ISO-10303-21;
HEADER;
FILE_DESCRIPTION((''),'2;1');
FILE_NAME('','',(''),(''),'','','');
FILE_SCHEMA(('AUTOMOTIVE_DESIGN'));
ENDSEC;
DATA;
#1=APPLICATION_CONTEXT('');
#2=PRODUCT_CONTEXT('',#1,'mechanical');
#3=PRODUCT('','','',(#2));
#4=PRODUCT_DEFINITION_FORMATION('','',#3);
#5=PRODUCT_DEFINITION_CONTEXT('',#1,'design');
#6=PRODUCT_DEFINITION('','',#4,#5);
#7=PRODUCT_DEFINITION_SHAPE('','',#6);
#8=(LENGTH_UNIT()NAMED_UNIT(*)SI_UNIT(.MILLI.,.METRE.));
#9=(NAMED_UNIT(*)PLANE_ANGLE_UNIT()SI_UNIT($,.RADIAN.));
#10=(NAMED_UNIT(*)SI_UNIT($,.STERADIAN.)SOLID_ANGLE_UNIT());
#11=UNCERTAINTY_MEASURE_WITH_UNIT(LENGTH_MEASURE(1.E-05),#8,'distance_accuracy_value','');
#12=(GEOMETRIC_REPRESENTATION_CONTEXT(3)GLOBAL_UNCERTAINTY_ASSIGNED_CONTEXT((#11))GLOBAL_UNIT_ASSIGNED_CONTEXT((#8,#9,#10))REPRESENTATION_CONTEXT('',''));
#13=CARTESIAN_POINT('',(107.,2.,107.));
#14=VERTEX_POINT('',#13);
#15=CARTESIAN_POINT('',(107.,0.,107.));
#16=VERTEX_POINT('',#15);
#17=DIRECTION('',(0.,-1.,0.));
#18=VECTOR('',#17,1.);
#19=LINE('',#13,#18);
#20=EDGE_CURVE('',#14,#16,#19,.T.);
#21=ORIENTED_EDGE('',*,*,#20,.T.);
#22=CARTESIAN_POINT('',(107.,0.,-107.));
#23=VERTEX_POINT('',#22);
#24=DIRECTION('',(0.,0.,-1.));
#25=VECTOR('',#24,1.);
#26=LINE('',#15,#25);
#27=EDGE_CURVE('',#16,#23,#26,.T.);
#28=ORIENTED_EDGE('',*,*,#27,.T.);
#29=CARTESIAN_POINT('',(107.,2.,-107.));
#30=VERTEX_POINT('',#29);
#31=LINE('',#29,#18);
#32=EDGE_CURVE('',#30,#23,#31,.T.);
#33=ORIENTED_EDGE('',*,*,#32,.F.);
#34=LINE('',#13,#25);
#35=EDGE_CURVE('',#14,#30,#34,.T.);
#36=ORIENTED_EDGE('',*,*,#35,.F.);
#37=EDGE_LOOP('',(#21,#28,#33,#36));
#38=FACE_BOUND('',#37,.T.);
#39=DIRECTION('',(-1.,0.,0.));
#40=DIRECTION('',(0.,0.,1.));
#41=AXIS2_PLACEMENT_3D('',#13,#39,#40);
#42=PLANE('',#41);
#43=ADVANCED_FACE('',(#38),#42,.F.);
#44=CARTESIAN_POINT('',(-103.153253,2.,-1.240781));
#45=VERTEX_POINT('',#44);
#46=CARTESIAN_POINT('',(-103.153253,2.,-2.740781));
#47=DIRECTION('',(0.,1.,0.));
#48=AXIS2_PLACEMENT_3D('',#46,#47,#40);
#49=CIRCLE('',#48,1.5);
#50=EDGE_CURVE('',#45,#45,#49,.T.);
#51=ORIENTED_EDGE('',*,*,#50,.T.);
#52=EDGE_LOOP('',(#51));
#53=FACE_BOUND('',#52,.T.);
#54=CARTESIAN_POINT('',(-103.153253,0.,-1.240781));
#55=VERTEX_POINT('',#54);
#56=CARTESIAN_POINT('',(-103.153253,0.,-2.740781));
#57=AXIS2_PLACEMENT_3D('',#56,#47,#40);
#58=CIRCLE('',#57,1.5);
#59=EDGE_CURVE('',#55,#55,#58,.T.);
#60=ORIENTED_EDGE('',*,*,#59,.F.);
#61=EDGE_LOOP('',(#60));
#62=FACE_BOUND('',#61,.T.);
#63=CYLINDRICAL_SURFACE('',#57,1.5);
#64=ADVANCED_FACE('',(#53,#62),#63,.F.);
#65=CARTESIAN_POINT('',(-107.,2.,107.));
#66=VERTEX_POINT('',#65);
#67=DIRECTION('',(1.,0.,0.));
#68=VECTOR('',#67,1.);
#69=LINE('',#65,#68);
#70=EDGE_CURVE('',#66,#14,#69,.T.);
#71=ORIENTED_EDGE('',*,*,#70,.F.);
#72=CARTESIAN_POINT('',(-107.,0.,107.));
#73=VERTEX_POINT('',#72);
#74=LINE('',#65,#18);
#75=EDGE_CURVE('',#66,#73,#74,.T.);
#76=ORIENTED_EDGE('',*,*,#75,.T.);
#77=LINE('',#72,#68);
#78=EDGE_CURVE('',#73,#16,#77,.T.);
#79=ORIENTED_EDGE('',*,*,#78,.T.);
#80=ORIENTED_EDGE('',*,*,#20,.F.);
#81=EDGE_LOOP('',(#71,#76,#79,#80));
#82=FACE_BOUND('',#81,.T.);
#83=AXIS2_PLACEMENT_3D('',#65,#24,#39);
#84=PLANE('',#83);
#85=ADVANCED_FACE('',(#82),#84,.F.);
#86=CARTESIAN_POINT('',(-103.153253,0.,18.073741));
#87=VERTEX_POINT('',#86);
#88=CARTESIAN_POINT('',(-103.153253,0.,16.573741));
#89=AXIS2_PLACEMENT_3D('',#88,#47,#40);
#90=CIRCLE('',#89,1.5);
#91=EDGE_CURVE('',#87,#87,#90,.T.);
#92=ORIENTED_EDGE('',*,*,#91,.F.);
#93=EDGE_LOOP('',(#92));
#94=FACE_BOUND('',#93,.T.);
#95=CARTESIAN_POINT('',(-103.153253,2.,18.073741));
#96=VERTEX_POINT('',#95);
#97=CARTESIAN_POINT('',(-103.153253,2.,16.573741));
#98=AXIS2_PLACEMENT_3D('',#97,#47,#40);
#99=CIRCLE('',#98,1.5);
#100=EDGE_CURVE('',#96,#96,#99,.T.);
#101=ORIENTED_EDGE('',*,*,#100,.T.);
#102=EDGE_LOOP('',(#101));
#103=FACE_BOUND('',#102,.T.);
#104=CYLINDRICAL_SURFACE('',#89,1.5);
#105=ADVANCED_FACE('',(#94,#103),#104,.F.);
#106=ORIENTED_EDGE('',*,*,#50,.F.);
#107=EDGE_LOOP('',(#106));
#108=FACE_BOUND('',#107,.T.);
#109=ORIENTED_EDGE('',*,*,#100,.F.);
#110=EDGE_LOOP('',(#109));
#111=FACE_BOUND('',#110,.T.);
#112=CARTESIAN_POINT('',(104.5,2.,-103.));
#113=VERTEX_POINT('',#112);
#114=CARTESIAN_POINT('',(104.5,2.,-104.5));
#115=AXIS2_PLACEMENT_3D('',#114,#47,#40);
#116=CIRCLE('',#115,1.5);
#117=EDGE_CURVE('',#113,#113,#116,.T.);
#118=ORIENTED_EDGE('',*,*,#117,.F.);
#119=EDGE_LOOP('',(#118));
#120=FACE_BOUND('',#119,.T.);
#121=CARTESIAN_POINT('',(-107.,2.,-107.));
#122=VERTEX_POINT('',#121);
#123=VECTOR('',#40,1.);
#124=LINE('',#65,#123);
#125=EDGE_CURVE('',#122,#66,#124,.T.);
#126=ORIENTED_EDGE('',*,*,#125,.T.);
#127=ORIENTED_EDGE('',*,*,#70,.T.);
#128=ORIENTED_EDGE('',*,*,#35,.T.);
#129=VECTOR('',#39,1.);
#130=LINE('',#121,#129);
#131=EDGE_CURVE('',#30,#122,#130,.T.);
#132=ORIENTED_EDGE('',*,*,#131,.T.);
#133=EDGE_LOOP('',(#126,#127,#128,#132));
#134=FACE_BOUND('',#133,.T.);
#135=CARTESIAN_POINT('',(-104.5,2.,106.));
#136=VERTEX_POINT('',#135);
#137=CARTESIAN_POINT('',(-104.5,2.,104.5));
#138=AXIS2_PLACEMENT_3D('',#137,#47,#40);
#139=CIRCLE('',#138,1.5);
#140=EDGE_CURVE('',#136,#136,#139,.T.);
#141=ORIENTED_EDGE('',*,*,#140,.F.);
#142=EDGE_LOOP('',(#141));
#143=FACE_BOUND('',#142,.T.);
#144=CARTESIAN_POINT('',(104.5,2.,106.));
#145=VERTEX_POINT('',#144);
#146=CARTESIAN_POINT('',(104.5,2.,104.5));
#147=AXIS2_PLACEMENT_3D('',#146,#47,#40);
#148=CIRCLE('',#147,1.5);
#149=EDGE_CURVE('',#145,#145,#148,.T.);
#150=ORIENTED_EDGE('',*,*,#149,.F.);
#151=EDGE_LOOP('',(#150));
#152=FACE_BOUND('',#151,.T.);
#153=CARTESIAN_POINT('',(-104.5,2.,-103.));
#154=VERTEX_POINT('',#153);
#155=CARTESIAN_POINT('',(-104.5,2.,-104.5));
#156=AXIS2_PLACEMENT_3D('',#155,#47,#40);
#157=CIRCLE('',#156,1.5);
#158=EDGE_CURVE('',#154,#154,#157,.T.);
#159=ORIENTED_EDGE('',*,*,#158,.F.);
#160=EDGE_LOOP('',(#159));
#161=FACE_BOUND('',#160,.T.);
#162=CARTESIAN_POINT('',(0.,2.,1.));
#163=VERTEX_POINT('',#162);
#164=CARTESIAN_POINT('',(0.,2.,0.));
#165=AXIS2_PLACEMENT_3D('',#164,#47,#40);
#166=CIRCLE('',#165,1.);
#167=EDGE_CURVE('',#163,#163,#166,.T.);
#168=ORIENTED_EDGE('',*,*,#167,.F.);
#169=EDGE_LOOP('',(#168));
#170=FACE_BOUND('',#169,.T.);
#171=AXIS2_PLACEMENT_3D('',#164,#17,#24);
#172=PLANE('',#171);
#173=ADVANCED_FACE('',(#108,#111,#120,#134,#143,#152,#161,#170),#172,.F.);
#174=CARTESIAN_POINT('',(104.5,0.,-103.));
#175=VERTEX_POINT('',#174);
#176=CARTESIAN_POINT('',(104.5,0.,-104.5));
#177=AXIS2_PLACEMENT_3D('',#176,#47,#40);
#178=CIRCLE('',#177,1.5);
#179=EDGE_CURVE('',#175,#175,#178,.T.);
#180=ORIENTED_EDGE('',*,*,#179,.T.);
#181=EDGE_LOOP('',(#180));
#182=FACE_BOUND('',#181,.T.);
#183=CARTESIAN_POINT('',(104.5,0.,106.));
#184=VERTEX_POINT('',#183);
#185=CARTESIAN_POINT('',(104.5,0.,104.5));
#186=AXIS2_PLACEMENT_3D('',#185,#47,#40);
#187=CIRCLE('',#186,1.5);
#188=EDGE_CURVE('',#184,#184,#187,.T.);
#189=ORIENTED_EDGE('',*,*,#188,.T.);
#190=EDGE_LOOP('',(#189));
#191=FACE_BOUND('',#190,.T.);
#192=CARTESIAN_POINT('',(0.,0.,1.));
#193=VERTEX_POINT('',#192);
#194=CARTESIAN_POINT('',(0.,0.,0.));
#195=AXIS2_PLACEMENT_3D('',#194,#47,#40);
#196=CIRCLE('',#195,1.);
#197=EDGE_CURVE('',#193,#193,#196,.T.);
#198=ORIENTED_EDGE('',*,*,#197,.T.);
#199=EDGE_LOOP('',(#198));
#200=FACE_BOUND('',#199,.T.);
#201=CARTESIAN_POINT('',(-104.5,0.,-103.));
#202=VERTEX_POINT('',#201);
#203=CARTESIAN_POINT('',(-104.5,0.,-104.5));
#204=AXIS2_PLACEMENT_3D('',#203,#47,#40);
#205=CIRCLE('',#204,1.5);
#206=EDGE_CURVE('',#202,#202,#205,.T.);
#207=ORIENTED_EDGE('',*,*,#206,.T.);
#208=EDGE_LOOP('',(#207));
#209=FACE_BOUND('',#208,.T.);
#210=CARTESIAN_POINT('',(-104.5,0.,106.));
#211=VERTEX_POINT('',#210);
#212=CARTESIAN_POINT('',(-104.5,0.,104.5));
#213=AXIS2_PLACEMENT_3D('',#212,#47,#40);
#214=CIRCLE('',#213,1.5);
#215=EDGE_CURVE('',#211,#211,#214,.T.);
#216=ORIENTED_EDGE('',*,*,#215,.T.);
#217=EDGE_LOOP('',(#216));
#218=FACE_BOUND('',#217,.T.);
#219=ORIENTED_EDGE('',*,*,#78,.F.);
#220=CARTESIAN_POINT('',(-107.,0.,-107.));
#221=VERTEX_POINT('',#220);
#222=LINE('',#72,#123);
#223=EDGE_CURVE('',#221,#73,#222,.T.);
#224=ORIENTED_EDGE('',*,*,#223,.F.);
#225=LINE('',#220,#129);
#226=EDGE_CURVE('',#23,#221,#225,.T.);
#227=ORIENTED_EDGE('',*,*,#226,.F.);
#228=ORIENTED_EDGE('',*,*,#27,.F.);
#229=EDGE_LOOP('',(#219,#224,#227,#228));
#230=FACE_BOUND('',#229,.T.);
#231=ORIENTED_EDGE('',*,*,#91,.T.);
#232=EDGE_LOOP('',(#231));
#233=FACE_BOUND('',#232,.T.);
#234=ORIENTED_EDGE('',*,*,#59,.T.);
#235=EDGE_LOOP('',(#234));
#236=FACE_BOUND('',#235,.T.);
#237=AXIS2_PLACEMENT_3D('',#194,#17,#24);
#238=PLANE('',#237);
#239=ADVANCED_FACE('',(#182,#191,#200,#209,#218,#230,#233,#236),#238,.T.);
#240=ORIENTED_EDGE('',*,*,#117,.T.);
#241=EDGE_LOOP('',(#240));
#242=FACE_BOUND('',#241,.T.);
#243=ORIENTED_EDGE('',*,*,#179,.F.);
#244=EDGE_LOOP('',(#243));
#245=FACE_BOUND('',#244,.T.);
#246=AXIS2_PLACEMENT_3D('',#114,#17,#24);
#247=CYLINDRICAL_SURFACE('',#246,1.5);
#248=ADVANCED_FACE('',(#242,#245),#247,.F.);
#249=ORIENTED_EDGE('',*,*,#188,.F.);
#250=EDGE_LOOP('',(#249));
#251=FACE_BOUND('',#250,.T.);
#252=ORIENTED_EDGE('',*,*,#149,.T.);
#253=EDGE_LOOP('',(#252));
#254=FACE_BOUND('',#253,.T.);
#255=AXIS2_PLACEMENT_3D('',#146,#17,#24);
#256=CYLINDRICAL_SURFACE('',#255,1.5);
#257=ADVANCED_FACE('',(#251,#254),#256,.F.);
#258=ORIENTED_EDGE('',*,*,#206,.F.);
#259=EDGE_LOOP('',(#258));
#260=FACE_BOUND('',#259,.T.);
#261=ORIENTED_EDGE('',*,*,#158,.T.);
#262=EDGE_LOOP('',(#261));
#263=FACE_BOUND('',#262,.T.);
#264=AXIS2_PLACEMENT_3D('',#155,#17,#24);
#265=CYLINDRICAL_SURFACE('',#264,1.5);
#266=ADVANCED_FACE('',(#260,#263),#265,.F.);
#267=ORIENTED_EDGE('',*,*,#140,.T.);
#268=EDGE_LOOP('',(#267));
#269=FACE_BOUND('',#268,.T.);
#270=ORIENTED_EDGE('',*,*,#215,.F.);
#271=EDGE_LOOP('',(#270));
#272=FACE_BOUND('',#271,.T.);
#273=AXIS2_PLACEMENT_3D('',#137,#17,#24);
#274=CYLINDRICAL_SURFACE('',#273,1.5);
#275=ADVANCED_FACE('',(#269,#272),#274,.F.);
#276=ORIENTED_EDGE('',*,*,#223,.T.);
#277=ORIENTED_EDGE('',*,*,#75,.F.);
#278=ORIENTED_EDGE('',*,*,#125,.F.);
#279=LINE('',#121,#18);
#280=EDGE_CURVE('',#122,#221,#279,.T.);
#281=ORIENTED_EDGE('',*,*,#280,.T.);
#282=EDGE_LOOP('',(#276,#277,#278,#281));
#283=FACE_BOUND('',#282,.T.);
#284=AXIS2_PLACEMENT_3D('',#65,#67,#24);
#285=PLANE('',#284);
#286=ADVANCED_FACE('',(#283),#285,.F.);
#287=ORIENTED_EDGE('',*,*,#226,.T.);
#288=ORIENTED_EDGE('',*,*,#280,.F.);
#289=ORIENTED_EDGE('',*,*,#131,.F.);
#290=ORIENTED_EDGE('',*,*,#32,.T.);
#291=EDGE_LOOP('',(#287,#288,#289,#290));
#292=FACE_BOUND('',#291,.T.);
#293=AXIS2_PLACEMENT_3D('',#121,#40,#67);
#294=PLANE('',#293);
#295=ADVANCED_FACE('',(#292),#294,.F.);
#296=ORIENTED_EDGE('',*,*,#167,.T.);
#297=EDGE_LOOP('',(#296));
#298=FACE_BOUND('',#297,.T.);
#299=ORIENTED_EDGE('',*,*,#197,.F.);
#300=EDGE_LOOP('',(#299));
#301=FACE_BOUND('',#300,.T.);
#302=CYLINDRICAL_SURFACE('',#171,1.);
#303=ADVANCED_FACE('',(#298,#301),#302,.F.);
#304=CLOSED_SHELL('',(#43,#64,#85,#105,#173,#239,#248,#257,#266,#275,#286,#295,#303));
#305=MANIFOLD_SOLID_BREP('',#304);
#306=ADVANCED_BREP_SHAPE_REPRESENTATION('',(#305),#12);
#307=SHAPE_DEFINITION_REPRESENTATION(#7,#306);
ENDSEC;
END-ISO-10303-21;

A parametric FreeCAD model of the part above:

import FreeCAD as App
import Part
import Sketcher
Q = App.Units.Quantity

doc = App.newDocument("Part")
params = doc.addObject("Spreadsheet::Sheet", "Params")
for row, (alias, value) in enumerate([
    ("sketch1_diameter", "3 mm"),
    ("sketch1_diameter2", "2 mm"),
    ("sketch1_width", "214 mm"),
    ("pad1_length", "2 mm"),
    ("sketch2_diameter", "3 mm"),
], start=1):
    params.set(f"A{row}", alias)
    params.set(f"B{row}", "=" + value)
    params.setAlias(f"B{row}", alias)

body = doc.addObject("PartDesign::Body", "Body")

sketch1 = body.newObject("Sketcher::SketchObject", "Sketch")
sketch1.AttachmentSupport = (doc.getObject("XZ_Plane"), [""])
sketch1.MapMode = "FlatFace"
sketch1.addGeometry(Part.LineSegment(App.Vector(-107, -107, 0), App.Vector(-107, 107, 0)), False)
sketch1.addGeometry(Part.LineSegment(App.Vector(-107, 107, 0), App.Vector(107, 107, 0)), False)
sketch1.addGeometry(Part.LineSegment(App.Vector(107, 107, 0), App.Vector(107, -107, 0)), False)
sketch1.addGeometry(Part.LineSegment(App.Vector(107, -107, 0), App.Vector(-107, -107, 0)), False)
sketch1.addGeometry(Part.Circle(App.Vector(-104.5, 104.5, 0), App.Vector(0, 0, 1), 1.5), False)
sketch1.addGeometry(Part.Circle(App.Vector(104.5, 104.5, 0), App.Vector(0, 0, 1), 1.5), False)
sketch1.addGeometry(Part.Circle(App.Vector(-104.5, -104.5, 0), App.Vector(0, 0, 1), 1.5), False)
sketch1.addGeometry(Part.Circle(App.Vector(0, 0, 0), App.Vector(0, 0, 1), 1), False)
sketch1.addGeometry(Part.Circle(App.Vector(104.5, -104.5, 0), App.Vector(0, 0, 1), 1.5), False)
sketch1.addConstraint(Sketcher.Constraint("Coincident", 0, 2, 1, 1))
sketch1.addConstraint(Sketcher.Constraint("Coincident", 1, 2, 2, 1))
sketch1.addConstraint(Sketcher.Constraint("Coincident", 2, 2, 3, 1))
sketch1.addConstraint(Sketcher.Constraint("Coincident", 3, 2, 0, 1))
sketch1.addConstraint(Sketcher.Constraint("Vertical", 0))
sketch1.addConstraint(Sketcher.Constraint("Horizontal", 1))
sketch1.addConstraint(Sketcher.Constraint("Vertical", 2))
sketch1.addConstraint(Sketcher.Constraint("Horizontal", 3))
sketch1.addConstraint(Sketcher.Constraint("Coincident", 7, 3, -1, 1))
sketch1.addConstraint(Sketcher.Constraint("Equal", 4, 5))
sketch1.addConstraint(Sketcher.Constraint("Equal", 5, 6))
sketch1.addConstraint(Sketcher.Constraint("Equal", 6, 8))
sketch1.addConstraint(Sketcher.Constraint("Symmetric", 5, 3, 6, 3, -1, 1))
sketch1.addConstraint(Sketcher.Constraint("Symmetric", 4, 3, 8, 3, -1, 1))
sketch1.addConstraint(Sketcher.Constraint("Symmetric", 0, 2, 2, 2, -1, 1))
sketch1.addConstraint(Sketcher.Constraint("Symmetric", 4, 3, 5, 3, -2))
sketch1.addConstraint(Sketcher.Constraint("Equal", 3, 0))
sketch1.addConstraint(Sketcher.Constraint("Diameter", 4, Q("3 mm")))
sketch1.addConstraint(Sketcher.Constraint("Diameter", 7, Q("2 mm")))
sketch1.addConstraint(Sketcher.Constraint("DistanceX", 1, 1, 1, 2, Q("214 mm")))
sketch1.addConstraint(Sketcher.Constraint("DistanceX", 4, 3, 5, 3, Q("209 mm")))
sketch1.addConstraint(Sketcher.Constraint("DistanceY", 6, 3, 4, 3, Q("209 mm")))
sketch1.setExpression("Constraints[17]", "Params.sketch1_diameter")
sketch1.setExpression("Constraints[18]", "Params.sketch1_diameter2")
sketch1.setExpression("Constraints[19]", "Params.sketch1_width")
pad1 = body.newObject("PartDesign::Pad", "Pad")
pad1.Profile = sketch1
pad1.setExpression("Length", "Params.pad1_length")
pad1.Reversed = True

sketch2 = body.newObject("Sketcher::SketchObject", "Sketch001")
sketch2.AttachmentSupport = (doc.getObject("XZ_Plane"), [""])
sketch2.MapMode = "FlatFace"
sketch2.AttachmentOffset = App.Placement(App.Vector(0, 0, -2), App.Rotation())
sketch2.addGeometry(Part.Circle(App.Vector(-103.2, -2.7, 0), App.Vector(0, 0, 1), 1.5), False)
sketch2.addGeometry(Part.Circle(App.Vector(-103.2, 16.6, 0), App.Vector(0, 0, 1), 1.5), False)
sketch2.addConstraint(Sketcher.Constraint("Equal", 0, 1))
sketch2.addConstraint(Sketcher.Constraint("Vertical", 0, 3, 1, 3))
sketch2.addConstraint(Sketcher.Constraint("Diameter", 0, Q("3 mm")))
sketch2.addConstraint(Sketcher.Constraint("DistanceY", 0, 3, -1, 1, Q("2.740781 mm")))
sketch2.addConstraint(Sketcher.Constraint("DistanceY", -1, 1, 1, 3, Q("16.573741 mm")))
sketch2.addConstraint(Sketcher.Constraint("DistanceX", 0, 3, -1, 1, Q("103.153253 mm")))
sketch2.setExpression("Constraints[2]", "Params.sketch2_diameter")
pocket1 = body.newObject("PartDesign::Pocket", "Pocket")
pocket1.Profile = sketch2
pocket1.Type = "ThroughAll"
pocket1.Reversed = True

doc.recompute()
